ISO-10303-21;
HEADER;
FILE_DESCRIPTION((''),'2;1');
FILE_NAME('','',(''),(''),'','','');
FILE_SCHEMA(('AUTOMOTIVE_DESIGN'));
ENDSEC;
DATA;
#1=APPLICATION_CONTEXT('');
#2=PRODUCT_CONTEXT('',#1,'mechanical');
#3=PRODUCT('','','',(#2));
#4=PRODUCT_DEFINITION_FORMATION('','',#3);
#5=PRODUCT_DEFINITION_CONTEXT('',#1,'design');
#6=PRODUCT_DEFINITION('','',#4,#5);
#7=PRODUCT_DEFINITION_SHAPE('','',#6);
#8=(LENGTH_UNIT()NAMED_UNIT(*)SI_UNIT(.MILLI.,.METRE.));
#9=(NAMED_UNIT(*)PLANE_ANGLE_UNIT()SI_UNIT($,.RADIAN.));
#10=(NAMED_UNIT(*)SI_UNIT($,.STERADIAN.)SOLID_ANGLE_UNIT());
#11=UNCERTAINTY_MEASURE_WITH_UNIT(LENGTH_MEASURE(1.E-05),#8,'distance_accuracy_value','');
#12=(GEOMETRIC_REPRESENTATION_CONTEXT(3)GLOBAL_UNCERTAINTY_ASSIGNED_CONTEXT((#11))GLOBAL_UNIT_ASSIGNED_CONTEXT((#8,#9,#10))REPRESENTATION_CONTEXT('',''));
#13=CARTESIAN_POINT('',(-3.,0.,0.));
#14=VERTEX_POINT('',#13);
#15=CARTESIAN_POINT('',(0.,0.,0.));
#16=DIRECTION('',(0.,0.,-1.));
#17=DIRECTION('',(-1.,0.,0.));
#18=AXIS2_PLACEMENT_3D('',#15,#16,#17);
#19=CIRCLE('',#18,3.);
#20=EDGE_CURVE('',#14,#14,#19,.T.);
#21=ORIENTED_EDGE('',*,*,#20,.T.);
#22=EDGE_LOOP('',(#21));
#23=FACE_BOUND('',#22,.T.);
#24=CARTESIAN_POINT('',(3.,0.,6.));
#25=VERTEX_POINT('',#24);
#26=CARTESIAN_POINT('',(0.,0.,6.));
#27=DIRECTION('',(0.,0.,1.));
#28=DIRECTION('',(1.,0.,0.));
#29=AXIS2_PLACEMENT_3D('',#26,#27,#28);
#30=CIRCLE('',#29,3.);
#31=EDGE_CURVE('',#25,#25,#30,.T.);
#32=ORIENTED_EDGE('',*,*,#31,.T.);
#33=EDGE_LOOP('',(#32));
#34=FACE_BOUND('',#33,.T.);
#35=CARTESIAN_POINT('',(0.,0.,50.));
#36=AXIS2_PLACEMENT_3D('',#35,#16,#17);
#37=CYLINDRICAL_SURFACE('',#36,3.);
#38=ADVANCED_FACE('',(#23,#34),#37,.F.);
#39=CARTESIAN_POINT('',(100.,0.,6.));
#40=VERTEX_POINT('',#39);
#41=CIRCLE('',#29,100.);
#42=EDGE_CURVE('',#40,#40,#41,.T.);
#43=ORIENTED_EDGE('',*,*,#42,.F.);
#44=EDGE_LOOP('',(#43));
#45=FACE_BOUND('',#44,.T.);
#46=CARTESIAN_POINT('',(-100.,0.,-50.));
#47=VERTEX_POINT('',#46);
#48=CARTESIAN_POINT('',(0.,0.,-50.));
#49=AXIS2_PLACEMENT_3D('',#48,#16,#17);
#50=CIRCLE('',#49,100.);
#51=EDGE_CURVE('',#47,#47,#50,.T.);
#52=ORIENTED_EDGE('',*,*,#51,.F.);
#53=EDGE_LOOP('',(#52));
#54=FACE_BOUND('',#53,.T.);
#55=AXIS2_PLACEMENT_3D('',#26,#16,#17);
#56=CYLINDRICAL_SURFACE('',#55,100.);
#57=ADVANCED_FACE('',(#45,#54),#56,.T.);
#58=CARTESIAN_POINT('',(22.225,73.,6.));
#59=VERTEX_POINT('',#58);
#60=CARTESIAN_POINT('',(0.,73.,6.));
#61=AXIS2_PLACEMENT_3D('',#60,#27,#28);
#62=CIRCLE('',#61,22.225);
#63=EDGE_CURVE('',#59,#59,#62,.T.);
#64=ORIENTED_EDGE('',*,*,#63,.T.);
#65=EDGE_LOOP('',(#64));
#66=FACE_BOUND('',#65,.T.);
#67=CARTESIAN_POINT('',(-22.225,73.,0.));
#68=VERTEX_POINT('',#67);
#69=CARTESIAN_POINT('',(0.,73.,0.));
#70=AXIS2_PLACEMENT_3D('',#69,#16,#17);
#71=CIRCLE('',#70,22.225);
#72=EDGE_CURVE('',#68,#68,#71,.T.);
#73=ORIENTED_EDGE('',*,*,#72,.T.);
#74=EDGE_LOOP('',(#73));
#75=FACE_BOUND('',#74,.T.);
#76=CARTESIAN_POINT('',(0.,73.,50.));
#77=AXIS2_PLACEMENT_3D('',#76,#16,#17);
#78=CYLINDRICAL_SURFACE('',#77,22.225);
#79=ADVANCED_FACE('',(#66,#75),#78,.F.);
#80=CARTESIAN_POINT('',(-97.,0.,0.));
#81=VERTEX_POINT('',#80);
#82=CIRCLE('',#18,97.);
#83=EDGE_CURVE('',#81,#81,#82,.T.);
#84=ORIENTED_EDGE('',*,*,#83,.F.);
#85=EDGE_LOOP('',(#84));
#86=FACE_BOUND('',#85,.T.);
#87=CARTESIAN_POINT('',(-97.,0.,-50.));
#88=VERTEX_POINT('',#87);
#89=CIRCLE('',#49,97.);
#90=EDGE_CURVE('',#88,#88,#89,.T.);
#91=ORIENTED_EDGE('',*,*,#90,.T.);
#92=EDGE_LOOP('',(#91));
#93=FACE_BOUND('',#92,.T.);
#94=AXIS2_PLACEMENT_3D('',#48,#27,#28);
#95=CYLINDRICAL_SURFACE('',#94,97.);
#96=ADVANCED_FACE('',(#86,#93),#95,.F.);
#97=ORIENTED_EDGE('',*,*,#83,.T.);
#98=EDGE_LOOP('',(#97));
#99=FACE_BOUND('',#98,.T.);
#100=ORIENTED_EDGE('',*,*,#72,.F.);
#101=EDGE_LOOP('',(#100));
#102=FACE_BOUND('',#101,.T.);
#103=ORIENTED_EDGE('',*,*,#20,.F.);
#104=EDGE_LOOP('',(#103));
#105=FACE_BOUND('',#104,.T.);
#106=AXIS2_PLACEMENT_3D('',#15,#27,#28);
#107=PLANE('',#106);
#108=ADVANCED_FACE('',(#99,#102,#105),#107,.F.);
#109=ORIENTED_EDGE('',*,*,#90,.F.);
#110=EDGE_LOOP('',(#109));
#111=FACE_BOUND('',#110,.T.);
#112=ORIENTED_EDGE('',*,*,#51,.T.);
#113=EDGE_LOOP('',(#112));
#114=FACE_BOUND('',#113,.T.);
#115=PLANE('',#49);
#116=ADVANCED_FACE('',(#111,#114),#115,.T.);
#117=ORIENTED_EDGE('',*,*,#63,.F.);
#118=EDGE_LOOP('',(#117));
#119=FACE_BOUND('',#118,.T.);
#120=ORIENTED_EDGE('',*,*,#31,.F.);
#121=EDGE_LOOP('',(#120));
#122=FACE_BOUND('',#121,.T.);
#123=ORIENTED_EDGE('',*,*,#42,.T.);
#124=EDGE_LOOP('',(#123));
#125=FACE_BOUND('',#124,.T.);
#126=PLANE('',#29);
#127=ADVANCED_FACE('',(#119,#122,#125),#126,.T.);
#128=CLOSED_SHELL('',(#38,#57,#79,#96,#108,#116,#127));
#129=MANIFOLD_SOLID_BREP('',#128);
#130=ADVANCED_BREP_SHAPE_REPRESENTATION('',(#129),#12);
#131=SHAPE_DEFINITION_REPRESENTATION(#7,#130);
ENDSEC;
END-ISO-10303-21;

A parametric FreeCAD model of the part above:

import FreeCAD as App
import Part
import Sketcher
from FreeCAD import Vector
Q = App.Units.Quantity

doc = App.newDocument("Part")
params = doc.addObject("Spreadsheet::Sheet", "Params")
for row, (alias, value) in enumerate([
    ("sketch1_diameter", "200 mm"),
    ("pad1_length", "6 mm"),
    ("sketch2_diameter", "200 mm"),
    ("sketch2_diameter2", "194 mm"),
    ("pad2_length", "50 mm"),
    ("sketch3_diameter", "44.45 mm"),
    ("pocket1_length", "50 mm"),
    ("sketch4_diameter", "6 mm"),
    ("pocket2_length", "50 mm"),
], start=1):
    params.set(f"A{row}", alias)
    params.set(f"B{row}", "=" + value)
    params.setAlias(f"B{row}", alias)

body = doc.addObject("PartDesign::Body", "Body")

sketch1 = body.newObject("Sketcher::SketchObject", "Sketch")
sketch1.AttachmentSupport = (doc.getObject("XY_Plane"), [""])
sketch1.MapMode = "FlatFace"
sketch1.addGeometry(Part.Circle(Vector(0, 0, 0), Vector(0, 0, 1), 100), False)
sketch1.addConstraint([
    Sketcher.Constraint("Coincident", 0, 3, -1, 1),
    Sketcher.Constraint("Diameter", 0, Q("200 mm")),
])
sketch1.setExpression("Constraints[1]", "Params.sketch1_diameter")
pad1 = body.newObject("PartDesign::Pad", "Pad")
pad1.Profile = sketch1
pad1.setExpression("Length", "Params.pad1_length")

sketch2 = body.newObject("Sketcher::SketchObject", "Sketch001")
sketch2.AttachmentSupport = (doc.getObject("XY_Plane"), [""])
sketch2.MapMode = "FlatFace"
sketch2.AttachmentOffset = App.Placement(Vector(0, 0, -50), App.Rotation())
sketch2.addGeometry([
    Part.Circle(Vector(0, 0, 0), Vector(0, 0, 1), 100),
    Part.Circle(Vector(0, 0, 0), Vector(0, 0, 1), 97),
], False)
sketch2.addConstraint([
    Sketcher.Constraint("Coincident", 0, 3, -1, 1),
    Sketcher.Constraint("Coincident", 1, 3, -1, 1),
    Sketcher.Constraint("Diameter", 0, Q("200 mm")),
    Sketcher.Constraint("Diameter", 1, Q("194 mm")),
])
sketch2.setExpression("Constraints[2]", "Params.sketch2_diameter")
sketch2.setExpression("Constraints[3]", "Params.sketch2_diameter2")
pad2 = body.newObject("PartDesign::Pad", "Pad001")
pad2.Profile = sketch2
pad2.setExpression("Length", "Params.pad2_length")

sketch3 = body.newObject("Sketcher::SketchObject", "Sketch002")
sketch3.AttachmentSupport = (doc.getObject("XY_Plane"), [""])
sketch3.MapMode = "FlatFace"
sketch3.addGeometry(Part.Circle(Vector(0, 73, 0), Vector(0, 0, 1), 22), False)
sketch3.addConstraint([
    Sketcher.Constraint("PointOnObject", 0, 3, -2),
    Sketcher.Constraint("Diameter", 0, Q("44.45 mm")),
    Sketcher.Constraint("DistanceY", -1, 1, 0, 3, Q("73 mm")),
])
sketch3.setExpression("Constraints[1]", "Params.sketch3_diameter")
pocket1 = body.newObject("PartDesign::Pocket", "Pocket")
pocket1.Profile = sketch3
pocket1.setExpression("Length", "Params.pocket1_length")
pocket1.Reversed = True

sketch4 = body.newObject("Sketcher::SketchObject", "Sketch003")
sketch4.AttachmentSupport = (doc.getObject("XY_Plane"), [""])
sketch4.MapMode = "FlatFace"
sketch4.addGeometry(Part.Circle(Vector(0, 0, 0), Vector(0, 0, 1), 3), False)
sketch4.addConstraint([
    Sketcher.Constraint("Coincident", 0, 3, -1, 1),
    Sketcher.Constraint("Diameter", 0, Q("6 mm")),
])
sketch4.setExpression("Constraints[1]", "Params.sketch4_diameter")
pocket2 = body.newObject("PartDesign::Pocket", "Pocket001")
pocket2.Profile = sketch4
pocket2.setExpression("Length", "Params.pocket2_length")
pocket2.Reversed = True

doc.recompute()
